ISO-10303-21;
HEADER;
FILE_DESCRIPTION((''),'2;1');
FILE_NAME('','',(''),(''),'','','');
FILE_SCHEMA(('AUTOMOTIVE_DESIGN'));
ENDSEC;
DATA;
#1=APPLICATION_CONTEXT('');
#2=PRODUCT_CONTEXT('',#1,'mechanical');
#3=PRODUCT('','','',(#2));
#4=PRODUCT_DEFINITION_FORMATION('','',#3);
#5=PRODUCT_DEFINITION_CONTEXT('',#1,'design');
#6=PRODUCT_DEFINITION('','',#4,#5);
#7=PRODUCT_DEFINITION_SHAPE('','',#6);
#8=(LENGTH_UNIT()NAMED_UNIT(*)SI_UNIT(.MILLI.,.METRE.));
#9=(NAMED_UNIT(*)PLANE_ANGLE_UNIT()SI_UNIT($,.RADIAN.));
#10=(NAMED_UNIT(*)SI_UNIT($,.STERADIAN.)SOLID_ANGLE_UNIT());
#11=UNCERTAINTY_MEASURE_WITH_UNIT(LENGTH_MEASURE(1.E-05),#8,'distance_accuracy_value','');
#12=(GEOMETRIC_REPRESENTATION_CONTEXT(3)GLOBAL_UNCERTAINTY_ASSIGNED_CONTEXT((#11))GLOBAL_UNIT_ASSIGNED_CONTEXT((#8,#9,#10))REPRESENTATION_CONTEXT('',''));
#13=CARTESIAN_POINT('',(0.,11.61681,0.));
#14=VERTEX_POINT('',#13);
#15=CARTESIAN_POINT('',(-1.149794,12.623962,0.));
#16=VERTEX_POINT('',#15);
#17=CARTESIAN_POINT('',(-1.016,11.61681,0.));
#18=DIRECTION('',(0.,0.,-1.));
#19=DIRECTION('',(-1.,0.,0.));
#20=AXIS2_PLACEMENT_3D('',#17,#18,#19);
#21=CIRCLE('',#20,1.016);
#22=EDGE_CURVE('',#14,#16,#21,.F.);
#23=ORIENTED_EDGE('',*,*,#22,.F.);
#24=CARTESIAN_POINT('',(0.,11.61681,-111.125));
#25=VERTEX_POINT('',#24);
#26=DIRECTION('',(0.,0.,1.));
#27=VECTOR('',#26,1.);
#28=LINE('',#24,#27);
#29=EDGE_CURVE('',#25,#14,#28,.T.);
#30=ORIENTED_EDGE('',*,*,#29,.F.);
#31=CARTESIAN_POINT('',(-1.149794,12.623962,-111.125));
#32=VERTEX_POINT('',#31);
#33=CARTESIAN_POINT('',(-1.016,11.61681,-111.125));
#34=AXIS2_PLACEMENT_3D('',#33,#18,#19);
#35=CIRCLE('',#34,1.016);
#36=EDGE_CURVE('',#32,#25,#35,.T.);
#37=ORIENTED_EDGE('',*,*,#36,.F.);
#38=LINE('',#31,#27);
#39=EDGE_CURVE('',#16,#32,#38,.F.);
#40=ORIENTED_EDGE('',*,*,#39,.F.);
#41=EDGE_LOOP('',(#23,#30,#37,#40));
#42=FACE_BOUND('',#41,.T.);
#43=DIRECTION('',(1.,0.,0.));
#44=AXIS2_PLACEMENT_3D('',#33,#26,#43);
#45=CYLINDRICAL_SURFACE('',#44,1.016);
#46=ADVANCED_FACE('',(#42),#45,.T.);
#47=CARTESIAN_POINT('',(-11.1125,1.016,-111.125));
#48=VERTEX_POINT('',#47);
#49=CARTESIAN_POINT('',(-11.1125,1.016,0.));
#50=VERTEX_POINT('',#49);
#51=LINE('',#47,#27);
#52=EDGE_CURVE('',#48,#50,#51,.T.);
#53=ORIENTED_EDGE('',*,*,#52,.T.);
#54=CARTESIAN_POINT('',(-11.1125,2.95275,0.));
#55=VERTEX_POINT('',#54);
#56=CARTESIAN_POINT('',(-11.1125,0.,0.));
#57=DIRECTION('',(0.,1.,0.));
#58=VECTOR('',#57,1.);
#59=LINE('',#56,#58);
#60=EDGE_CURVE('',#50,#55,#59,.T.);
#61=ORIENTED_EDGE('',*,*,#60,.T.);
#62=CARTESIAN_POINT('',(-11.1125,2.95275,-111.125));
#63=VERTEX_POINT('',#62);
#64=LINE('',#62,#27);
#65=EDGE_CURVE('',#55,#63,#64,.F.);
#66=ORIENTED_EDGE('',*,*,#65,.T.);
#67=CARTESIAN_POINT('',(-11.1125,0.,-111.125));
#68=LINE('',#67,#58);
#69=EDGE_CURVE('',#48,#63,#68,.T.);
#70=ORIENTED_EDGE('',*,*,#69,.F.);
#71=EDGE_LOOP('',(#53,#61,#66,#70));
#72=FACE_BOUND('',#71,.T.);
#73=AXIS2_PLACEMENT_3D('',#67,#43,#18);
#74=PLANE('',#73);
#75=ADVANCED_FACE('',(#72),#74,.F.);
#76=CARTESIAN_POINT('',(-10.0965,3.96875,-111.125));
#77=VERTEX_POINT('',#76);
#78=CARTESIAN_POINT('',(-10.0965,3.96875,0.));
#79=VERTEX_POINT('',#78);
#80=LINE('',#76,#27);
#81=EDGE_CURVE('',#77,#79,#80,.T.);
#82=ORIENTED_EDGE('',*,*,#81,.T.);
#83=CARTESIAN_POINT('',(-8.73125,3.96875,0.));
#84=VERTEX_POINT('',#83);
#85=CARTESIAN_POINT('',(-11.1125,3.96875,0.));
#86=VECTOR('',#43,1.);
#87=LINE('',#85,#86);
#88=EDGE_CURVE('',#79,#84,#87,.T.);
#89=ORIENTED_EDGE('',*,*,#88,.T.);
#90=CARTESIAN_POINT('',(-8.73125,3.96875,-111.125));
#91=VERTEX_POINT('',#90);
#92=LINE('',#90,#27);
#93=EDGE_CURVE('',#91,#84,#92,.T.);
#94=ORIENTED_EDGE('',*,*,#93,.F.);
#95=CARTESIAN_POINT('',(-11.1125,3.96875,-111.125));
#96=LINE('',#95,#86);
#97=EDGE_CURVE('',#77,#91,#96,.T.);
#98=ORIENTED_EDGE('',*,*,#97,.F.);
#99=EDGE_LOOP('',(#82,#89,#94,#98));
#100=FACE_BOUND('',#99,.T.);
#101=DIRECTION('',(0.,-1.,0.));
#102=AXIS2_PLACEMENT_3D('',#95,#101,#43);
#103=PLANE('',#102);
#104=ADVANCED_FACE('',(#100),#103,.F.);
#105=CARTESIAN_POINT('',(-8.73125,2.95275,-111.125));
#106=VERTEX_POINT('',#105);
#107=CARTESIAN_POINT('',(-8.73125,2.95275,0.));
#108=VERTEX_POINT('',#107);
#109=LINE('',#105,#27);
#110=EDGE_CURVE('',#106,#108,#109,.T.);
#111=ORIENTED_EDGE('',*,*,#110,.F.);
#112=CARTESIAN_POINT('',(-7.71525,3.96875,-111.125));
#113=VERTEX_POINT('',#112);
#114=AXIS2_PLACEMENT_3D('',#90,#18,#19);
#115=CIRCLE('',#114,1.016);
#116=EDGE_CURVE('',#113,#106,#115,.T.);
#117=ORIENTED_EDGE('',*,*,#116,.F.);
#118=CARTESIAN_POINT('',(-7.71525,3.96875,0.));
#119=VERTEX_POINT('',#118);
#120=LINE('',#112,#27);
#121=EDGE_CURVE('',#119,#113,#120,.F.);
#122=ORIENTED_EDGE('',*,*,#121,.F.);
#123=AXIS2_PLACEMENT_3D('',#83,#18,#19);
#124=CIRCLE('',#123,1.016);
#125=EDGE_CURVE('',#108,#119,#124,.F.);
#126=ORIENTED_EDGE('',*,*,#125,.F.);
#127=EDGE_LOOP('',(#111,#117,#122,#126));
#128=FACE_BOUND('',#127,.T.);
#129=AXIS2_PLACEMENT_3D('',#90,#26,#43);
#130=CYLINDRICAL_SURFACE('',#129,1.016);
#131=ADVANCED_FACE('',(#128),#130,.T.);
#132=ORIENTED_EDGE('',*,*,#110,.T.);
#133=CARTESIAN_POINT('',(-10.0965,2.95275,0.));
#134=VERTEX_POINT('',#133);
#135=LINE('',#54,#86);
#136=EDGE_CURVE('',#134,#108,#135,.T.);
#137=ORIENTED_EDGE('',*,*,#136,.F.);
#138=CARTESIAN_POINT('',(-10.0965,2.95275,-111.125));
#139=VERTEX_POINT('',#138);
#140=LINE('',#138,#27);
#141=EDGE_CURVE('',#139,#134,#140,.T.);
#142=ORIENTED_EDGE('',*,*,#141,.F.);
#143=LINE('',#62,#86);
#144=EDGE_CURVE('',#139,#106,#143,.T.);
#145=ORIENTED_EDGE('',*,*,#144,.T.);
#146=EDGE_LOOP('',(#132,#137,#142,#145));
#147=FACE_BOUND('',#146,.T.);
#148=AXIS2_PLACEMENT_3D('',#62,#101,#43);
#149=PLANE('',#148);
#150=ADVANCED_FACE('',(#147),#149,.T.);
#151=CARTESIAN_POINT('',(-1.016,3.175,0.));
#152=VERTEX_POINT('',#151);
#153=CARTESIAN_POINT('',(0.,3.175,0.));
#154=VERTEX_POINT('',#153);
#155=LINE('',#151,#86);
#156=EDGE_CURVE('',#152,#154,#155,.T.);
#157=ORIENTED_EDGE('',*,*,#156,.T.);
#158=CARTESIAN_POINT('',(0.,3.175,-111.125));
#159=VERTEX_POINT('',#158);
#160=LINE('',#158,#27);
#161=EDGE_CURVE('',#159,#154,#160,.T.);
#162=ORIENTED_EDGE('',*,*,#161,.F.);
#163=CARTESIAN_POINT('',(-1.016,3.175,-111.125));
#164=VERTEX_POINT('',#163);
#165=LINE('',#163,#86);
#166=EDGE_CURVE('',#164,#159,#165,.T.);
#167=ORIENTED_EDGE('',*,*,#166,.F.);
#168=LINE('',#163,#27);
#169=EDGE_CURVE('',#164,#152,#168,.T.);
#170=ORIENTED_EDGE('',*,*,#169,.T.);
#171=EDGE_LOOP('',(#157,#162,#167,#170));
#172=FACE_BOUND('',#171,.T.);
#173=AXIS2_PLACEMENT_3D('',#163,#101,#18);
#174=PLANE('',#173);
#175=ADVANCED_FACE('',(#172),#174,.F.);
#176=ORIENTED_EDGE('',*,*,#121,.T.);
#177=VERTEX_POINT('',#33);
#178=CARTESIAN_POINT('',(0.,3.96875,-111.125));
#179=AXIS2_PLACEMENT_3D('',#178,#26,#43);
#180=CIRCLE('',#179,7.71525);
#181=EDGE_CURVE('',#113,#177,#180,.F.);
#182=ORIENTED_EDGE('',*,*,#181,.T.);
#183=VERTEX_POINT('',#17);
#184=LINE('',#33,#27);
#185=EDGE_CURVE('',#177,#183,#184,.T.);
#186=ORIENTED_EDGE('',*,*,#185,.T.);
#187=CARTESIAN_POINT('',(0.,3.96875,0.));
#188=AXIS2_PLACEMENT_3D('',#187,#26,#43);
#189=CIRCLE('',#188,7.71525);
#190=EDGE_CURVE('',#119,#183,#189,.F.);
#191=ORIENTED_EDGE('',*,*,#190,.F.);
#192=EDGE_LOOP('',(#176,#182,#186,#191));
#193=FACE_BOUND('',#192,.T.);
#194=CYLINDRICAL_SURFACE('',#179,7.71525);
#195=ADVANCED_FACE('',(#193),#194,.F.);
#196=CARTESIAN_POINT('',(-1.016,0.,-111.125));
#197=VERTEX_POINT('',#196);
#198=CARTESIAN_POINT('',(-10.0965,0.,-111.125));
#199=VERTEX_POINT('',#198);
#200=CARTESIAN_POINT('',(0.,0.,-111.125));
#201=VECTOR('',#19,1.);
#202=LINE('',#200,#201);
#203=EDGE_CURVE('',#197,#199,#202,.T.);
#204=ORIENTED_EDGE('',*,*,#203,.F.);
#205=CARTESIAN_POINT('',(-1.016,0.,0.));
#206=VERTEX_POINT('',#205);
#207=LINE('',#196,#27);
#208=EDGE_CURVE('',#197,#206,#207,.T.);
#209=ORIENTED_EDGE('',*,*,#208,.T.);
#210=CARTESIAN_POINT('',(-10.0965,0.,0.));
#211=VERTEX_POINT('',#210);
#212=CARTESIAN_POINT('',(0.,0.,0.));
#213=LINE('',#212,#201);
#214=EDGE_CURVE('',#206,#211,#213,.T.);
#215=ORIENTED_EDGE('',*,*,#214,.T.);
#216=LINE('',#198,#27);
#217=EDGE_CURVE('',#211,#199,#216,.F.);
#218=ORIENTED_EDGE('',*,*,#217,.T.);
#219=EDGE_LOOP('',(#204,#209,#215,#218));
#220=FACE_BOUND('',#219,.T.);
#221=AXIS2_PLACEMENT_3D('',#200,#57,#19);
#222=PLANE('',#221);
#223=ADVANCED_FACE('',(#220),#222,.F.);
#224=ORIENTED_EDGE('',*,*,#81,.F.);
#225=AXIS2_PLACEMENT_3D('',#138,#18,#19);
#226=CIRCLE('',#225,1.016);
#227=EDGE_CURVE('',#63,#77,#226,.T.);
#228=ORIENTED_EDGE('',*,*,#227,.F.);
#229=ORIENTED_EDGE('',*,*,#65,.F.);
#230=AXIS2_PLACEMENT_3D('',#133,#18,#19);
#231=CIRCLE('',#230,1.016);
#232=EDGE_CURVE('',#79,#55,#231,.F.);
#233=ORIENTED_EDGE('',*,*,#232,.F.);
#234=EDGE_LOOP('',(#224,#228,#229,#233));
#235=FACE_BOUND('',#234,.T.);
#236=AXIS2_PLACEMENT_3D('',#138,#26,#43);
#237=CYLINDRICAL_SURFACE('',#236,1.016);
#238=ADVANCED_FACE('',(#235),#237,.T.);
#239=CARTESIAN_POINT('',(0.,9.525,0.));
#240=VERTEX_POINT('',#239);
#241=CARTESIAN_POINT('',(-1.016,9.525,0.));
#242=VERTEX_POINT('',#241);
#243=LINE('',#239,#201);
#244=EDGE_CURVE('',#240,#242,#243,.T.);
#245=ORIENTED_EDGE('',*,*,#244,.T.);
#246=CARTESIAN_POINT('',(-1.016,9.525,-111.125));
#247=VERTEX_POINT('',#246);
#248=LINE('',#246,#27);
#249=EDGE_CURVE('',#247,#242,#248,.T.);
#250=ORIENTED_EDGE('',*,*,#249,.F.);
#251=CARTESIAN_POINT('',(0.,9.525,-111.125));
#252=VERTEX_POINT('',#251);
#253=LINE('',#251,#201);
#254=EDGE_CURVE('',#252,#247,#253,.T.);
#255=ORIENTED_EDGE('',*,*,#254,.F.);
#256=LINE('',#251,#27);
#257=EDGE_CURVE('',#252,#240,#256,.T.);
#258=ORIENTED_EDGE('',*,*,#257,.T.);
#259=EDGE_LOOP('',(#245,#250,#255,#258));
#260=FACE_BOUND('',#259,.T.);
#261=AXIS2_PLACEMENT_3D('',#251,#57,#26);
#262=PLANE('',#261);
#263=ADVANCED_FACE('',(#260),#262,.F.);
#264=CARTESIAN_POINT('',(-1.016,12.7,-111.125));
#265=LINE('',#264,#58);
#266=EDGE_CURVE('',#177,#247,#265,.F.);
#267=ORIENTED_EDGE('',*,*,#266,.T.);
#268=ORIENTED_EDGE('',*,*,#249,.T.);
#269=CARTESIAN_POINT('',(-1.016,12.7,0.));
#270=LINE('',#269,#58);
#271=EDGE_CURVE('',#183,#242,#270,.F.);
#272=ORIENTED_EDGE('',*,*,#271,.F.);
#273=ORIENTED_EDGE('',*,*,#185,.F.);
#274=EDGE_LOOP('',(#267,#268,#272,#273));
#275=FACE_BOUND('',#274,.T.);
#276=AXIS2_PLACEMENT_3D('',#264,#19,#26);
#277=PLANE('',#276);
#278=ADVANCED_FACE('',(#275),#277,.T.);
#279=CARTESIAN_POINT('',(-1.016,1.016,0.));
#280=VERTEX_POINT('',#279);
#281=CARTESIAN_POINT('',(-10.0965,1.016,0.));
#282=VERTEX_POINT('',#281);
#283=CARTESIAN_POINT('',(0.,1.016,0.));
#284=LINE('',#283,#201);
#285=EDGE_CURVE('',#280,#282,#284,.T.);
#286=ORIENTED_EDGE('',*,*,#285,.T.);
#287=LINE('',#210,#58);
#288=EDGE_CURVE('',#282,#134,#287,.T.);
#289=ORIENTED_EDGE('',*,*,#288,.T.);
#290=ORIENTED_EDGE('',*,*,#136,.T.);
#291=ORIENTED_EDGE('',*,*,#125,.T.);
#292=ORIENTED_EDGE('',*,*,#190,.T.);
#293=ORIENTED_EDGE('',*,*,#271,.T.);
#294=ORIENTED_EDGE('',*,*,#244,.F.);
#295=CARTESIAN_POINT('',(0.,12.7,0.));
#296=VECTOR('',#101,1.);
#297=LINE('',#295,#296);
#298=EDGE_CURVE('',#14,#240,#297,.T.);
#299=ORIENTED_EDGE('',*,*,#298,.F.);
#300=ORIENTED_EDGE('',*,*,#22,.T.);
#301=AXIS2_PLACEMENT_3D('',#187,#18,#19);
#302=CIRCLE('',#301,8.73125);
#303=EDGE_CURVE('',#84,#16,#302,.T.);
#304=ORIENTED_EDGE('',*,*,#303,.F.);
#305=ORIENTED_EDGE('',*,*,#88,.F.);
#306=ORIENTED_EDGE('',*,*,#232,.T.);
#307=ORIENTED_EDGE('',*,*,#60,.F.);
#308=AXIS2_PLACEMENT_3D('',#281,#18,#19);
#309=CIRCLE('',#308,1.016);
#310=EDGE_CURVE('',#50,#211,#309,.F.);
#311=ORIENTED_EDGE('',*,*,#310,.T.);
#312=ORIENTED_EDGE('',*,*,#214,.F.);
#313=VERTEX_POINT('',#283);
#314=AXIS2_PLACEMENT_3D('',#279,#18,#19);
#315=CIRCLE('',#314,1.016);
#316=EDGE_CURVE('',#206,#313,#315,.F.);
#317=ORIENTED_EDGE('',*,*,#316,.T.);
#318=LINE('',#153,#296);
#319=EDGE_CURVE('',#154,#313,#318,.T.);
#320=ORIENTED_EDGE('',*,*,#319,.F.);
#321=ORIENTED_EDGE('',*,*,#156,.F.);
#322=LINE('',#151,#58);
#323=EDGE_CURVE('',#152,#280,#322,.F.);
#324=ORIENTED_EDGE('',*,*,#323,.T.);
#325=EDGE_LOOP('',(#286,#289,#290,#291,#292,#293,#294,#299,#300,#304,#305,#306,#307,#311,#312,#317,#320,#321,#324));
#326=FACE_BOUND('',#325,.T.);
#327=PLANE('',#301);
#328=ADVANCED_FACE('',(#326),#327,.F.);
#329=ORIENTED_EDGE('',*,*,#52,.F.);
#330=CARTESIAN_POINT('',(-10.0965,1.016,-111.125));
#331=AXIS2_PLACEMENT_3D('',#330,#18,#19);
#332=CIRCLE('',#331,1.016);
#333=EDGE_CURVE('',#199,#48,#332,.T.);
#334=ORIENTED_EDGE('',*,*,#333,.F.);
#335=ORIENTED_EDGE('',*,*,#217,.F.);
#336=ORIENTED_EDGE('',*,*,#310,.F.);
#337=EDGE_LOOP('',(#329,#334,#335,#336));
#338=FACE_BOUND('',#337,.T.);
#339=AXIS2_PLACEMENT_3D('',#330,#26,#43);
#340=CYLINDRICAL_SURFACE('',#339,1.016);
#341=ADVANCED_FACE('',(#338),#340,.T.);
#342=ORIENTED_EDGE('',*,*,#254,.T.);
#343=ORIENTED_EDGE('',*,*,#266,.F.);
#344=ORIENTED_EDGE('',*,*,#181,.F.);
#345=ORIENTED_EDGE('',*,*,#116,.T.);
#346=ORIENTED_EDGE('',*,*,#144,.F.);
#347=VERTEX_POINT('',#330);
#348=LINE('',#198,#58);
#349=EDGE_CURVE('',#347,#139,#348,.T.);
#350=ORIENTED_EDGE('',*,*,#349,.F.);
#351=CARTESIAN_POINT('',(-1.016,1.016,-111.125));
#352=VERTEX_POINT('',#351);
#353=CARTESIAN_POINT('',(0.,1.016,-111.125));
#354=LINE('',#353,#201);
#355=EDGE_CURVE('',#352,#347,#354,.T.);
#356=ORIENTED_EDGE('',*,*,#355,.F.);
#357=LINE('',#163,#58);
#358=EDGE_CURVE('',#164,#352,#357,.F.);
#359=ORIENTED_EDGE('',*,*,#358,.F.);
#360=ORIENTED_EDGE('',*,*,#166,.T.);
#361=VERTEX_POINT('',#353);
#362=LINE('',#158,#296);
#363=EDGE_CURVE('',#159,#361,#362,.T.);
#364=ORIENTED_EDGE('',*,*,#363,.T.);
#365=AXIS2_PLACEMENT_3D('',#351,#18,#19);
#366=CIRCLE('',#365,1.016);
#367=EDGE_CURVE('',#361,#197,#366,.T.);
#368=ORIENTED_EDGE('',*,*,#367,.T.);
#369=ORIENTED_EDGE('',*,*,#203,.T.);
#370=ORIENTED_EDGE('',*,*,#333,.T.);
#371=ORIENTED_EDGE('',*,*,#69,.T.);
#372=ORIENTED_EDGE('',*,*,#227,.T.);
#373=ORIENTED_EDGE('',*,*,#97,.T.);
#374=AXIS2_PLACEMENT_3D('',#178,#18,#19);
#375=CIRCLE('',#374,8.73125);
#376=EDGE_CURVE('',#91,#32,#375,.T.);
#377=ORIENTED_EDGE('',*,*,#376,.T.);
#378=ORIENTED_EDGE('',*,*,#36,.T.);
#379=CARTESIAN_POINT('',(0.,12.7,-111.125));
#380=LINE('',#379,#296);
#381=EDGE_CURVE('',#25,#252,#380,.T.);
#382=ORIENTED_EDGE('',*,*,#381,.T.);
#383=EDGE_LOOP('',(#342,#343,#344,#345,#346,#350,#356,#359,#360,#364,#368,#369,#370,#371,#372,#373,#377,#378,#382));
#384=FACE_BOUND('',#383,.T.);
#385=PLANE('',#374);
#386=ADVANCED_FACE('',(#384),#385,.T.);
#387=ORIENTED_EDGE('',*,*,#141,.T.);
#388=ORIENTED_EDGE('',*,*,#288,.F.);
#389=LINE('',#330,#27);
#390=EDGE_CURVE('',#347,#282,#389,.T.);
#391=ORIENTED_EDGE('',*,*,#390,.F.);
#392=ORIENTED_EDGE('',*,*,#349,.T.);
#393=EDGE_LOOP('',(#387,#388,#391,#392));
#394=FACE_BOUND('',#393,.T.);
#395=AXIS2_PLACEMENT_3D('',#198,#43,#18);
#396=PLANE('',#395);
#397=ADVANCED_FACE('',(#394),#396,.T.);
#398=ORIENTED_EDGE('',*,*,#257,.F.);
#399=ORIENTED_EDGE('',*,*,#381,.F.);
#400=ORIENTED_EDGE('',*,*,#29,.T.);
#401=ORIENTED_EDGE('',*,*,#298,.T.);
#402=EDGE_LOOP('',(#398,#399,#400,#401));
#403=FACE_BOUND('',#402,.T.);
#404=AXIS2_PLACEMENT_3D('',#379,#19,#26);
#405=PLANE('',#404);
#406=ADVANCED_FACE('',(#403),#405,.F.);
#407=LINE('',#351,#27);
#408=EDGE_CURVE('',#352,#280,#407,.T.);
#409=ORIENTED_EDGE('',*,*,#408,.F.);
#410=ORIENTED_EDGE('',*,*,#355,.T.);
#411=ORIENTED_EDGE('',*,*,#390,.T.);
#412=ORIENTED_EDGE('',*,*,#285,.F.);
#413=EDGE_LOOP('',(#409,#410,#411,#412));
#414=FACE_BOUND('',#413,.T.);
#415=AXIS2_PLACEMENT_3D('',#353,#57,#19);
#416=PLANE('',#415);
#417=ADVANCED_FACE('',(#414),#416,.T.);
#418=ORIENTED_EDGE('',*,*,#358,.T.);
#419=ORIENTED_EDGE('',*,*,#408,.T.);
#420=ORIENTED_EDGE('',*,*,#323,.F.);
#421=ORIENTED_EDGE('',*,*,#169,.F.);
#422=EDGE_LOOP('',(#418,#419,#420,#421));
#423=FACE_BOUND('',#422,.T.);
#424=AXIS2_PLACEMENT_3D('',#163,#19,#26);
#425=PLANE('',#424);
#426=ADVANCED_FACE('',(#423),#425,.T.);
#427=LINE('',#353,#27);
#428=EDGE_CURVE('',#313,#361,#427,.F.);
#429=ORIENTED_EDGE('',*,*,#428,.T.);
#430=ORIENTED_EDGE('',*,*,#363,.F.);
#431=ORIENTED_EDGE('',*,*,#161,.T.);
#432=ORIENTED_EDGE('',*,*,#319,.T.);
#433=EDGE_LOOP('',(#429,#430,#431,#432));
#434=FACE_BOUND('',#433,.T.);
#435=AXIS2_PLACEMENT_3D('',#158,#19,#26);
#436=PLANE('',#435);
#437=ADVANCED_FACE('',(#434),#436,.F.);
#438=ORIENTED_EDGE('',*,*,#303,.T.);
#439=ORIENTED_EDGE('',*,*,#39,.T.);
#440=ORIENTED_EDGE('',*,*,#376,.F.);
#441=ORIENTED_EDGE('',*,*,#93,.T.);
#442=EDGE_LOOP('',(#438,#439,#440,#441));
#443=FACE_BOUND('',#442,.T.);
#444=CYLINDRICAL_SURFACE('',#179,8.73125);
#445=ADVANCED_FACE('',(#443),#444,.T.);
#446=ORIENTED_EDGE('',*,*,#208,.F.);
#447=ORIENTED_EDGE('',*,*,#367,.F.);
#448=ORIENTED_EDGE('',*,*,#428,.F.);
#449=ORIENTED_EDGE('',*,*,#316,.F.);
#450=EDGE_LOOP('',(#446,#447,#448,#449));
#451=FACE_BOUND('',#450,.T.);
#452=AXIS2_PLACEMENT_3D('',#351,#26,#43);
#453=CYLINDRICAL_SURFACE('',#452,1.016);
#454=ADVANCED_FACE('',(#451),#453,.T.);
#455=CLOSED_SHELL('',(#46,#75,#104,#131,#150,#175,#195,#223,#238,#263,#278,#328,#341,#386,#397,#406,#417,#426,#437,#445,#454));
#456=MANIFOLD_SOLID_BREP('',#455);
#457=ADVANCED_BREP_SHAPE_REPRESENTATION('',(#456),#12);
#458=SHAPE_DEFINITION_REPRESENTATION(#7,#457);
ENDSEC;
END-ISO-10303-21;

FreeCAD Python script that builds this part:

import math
import FreeCAD as App
import Part
import Sketcher

V = App.Vector
Q = App.Units.Quantity


def edges_at(feature, points):
    """Names of the edges that pass closest to the given points."""
    edges = feature.Shape.Edges
    near = lambda p: min(range(len(edges)), key=lambda i: edges[i].distToShape(Part.Vertex(*p))[0])
    return sorted({f"Edge{near(p) + 1}" for p in points})

doc = App.newDocument("Part")
body = doc.addObject("PartDesign::Body", "Body")

# Sketch on XY plane
sketch1 = body.newObject("Sketcher::SketchObject", "Sketch")
sketch1.AttachmentSupport = (doc.getObject("XY_Plane"), [""])
sketch1.MapMode = "FlatFace"
sketch1.addGeometry(Part.LineSegment(V(0, 0, 0), V(0, 3.175, 0)), False)
sketch1.addGeometry(Part.LineSegment(V(0, 3.175, 0), V(-1.016, 3.175, 0)), False)
sketch1.addGeometry(Part.LineSegment(V(-1.016, 3.175, 0), V(-1.016, 1.016, 0)), False)
sketch1.addGeometry(Part.LineSegment(V(-1.016, 1.016, 0), V(-10.0965, 1.016, 0)), False)
sketch1.addGeometry(Part.LineSegment(V(-10.0965, 1.016, 0), V(-10.0965, 2.95275, 0)), False)
sketch1.addGeometry(Part.LineSegment(V(-10.0965, 2.95275, 0), V(-7.64806, 2.95275, 0)), False)
sketch1.addGeometry(Part.ArcOfCircle(Part.Circle(V(0, 3.96875, 0), V(0, 0, 1), 7.71525), math.radians(97.567103), math.radians(187.567103)), False)
sketch1.addGeometry(Part.LineSegment(V(-1.016, 11.61681, 0), V(-1.016, 9.525, 0)), False)
sketch1.addGeometry(Part.LineSegment(V(-1.016, 9.525, 0), V(0, 9.525, 0)), False)
sketch1.addGeometry(Part.LineSegment(V(0, 9.525, 0), V(0, 12.7, 0)), False)
sketch1.addGeometry(Part.ArcOfCircle(Part.Circle(V(0, 3.96875, 0), V(0, 0, 1), 8.73125), math.radians(90), math.radians(180)), False)
sketch1.addGeometry(Part.LineSegment(V(-8.73125, 3.96875, 0), V(-11.1125, 3.96875, 0)), False)
sketch1.addGeometry(Part.LineSegment(V(-11.1125, 3.96875, 0), V(-11.1125, 0, 0)), False)
sketch1.addGeometry(Part.LineSegment(V(-11.1125, 0, 0), V(0, 0, 0)), False)
sketch1.addConstraint(Sketcher.Constraint("Coincident", 0, 2, 1, 1))
sketch1.addConstraint(Sketcher.Constraint("Coincident", 1, 2, 2, 1))
sketch1.addConstraint(Sketcher.Constraint("Coincident", 2, 2, 3, 1))
sketch1.addConstraint(Sketcher.Constraint("Coincident", 3, 2, 4, 1))
sketch1.addConstraint(Sketcher.Constraint("Coincident", 4, 2, 5, 1))
sketch1.addConstraint(Sketcher.Constraint("Coincident", 5, 2, 6, 2))
sketch1.addConstraint(Sketcher.Constraint("Coincident", 6, 1, 7, 1))
sketch1.addConstraint(Sketcher.Constraint("Coincident", 7, 2, 8, 1))
sketch1.addConstraint(Sketcher.Constraint("Coincident", 8, 2, 9, 1))
sketch1.addConstraint(Sketcher.Constraint("Coincident", 9, 2, 10, 1))
sketch1.addConstraint(Sketcher.Constraint("Coincident", 10, 2, 11, 1))
sketch1.addConstraint(Sketcher.Constraint("Coincident", 11, 2, 12, 1))
sketch1.addConstraint(Sketcher.Constraint("Coincident", 12, 2, 13, 1))
sketch1.addConstraint(Sketcher.Constraint("Coincident", 13, 2, 0, 1))
sketch1.addConstraint(Sketcher.Constraint("Vertical", 0))
sketch1.addConstraint(Sketcher.Constraint("Horizontal", 1))
sketch1.addConstraint(Sketcher.Constraint("Vertical", 2))
sketch1.addConstraint(Sketcher.Constraint("Horizontal", 3))
sketch1.addConstraint(Sketcher.Constraint("Vertical", 4))
sketch1.addConstraint(Sketcher.Constraint("Horizontal", 5))
sketch1.addConstraint(Sketcher.Constraint("Vertical", 7))
sketch1.addConstraint(Sketcher.Constraint("Horizontal", 8))
sketch1.addConstraint(Sketcher.Constraint("Vertical", 9))
sketch1.addConstraint(Sketcher.Constraint("Horizontal", 11))
sketch1.addConstraint(Sketcher.Constraint("Vertical", 12))
sketch1.addConstraint(Sketcher.Constraint("Horizontal", 13))
sketch1.addConstraint(Sketcher.Constraint("Coincident", 13, 2, -1, 1))
sketch1.addConstraint(Sketcher.Constraint("Coincident", 10, 3, 6, 3))
sketch1.addConstraint(Sketcher.Constraint("PointOnObject", 6, 3, -2))
sketch1.addConstraint(Sketcher.Constraint("PointOnObject", 8, 2, -2))
sketch1.addConstraint(Sketcher.Constraint("Horizontal", 6, 3, 10, 2))
sketch1.addConstraint(Sketcher.Constraint("Vertical", 2, 2, 6, 1))
sketch1.addConstraint(Sketcher.Constraint("Equal", 0, 9))
sketch1.addConstraint(Sketcher.Constraint("Radius", 10, Q("0.34375 in")))
sketch1.addConstraint(Sketcher.Constraint("DistanceX", 1, 2, 1, 1, Q("0.04 in")))
sketch1.addConstraint(Sketcher.Constraint("DistanceY", -1, 1, 9, 2, Q("0.5 in")))
sketch1.addConstraint(Sketcher.Constraint("DistanceX", 11, 2, 11, 1, Q("0.09375 in")))
sketch1.addConstraint(Sketcher.Constraint("DistanceY", 0, 1, 0, 2, Q("0.125 in")))
sketch1.addConstraint(Sketcher.Constraint("DistanceY", 2, 2, 2, 1, Q("0.085 in")))
sketch1.addConstraint(Sketcher.Constraint("DistanceY", 4, 2, 10, 3, Q("0.04 in")))
sketch1.addConstraint(Sketcher.Constraint("DistanceX", 11, 2, 4, 2, Q("0.04 in")))
sketch1.addConstraint(Sketcher.Constraint("Radius", 6, Q("7.71525 mm")))
pad1 = body.newObject("PartDesign::Pad", "Pad")
pad1.Profile = sketch1
pad1.Length = Q("4.375 in")
pad1.Reversed = True
doc.recompute()

fillet = body.newObject("PartDesign::Fillet", "Fillet")
fillet.Base = (pad1, edges_at(pad1, [
    (-7.648, 2.953, -55.562),
    (0, 0, -55.562),
    (-11.113, 0, -55.562),
    (-11.113, 3.969, -55.562),
    (0, 12.7, -55.562),
]))
fillet.Radius = Q("0.04 in")

doc.recompute()
